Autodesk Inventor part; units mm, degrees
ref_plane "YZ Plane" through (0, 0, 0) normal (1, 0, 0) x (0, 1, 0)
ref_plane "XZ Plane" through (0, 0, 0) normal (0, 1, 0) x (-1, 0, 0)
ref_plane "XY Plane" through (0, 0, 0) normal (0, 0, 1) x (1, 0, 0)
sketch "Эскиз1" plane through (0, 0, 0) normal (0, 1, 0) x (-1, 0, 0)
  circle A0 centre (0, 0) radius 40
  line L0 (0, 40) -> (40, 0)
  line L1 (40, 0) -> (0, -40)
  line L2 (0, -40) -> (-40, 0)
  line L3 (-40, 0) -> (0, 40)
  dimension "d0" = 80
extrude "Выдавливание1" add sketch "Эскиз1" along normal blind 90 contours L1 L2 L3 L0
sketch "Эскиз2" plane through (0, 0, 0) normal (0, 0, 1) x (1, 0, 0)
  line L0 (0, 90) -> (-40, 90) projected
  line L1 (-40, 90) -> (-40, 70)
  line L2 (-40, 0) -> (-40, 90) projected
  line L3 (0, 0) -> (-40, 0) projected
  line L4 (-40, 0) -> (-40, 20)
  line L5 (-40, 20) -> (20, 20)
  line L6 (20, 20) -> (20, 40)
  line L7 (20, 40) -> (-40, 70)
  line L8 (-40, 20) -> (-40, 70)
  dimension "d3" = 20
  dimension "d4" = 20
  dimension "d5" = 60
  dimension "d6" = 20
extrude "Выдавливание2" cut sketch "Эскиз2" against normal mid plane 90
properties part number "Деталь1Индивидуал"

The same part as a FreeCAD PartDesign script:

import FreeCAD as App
import Part
import Sketcher
from FreeCAD import Vector

doc = App.newDocument("Part")
body = doc.addObject("PartDesign::Body", "Body")

# Sketch on XZ plane
sketch1 = doc.addObject("Sketcher::SketchObject", "Sketch")
body.addObject(sketch1)
sketch1.AttachmentSupport = (doc.XZ_Plane, [""])
sketch1.MapMode = "FlatFace"
sketch1.addGeometry([
    Part.LineSegment(Vector(0, -40, 0), Vector(-40, 0, 0)),
    Part.LineSegment(Vector(-40, 0, 0), Vector(0, 40, 0)),
    Part.LineSegment(Vector(0, 40, 0), Vector(40, 0, 0)),
    Part.LineSegment(Vector(40, 0, 0), Vector(0, -40, 0)),
], False)
sketch1.addConstraint([
    Sketcher.Constraint("Coincident", 0, 2, 1, 1),
    Sketcher.Constraint("Coincident", 1, 2, 2, 1),
    Sketcher.Constraint("Coincident", 2, 2, 3, 1),
    Sketcher.Constraint("Coincident", 3, 2, 0, 1),
    Sketcher.Constraint("Symmetric", 0, 2, 2, 2, -1, 1),
    Sketcher.Constraint("Symmetric", 1, 2, 3, 2, -1, 1),
    Sketcher.Constraint("PointOnObject", 0, 2, -1),
    Sketcher.Constraint("PointOnObject", 1, 2, -2),
    Sketcher.Constraint("Perpendicular", 0, 1),
    Sketcher.Constraint("DistanceX", 0, 2, 2, 2, 80.0),
])
pad1 = doc.addObject("PartDesign::Pad", "Pad")
body.addObject(pad1)
pad1.Profile = sketch1
pad1.Length = 90
pad1.Reversed = True

# Sketch on XY plane
sketch2 = doc.addObject("Sketcher::SketchObject", "Sketch001")
body.addObject(sketch2)
sketch2.AttachmentSupport = (doc.XY_Plane, [""])
sketch2.MapMode = "FlatFace"
sketch2.addGeometry([
    Part.LineSegment(Vector(-40, 70, 0), Vector(-40, 20, 0)),
    Part.LineSegment(Vector(-40, 20, 0), Vector(20, 20, 0)),
    Part.LineSegment(Vector(20, 20, 0), Vector(20, 40, 0)),
    Part.LineSegment(Vector(20, 40, 0), Vector(-40, 70, 0)),
], False)
sketch2.addConstraint([
    Sketcher.Constraint("Coincident", 0, 2, 1, 1),
    Sketcher.Constraint("Coincident", 1, 2, 2, 1),
    Sketcher.Constraint("Coincident", 2, 2, 3, 1),
    Sketcher.Constraint("Coincident", 3, 2, 0, 1),
    Sketcher.Constraint("Vertical", 0),
    Sketcher.Constraint("Horizontal", 1),
    Sketcher.Constraint("Vertical", 2),
    Sketcher.Constraint("DistanceX", 1, 1, 1, 2, 60.0),
    Sketcher.Constraint("DistanceY", 2, 1, 2, 2, 20.0),
    Sketcher.Constraint("DistanceY", -1, 1, 0, 2, 20.0),
    Sketcher.Constraint("DistanceX", -1, 1, 1, 2, 20.0),
    Sketcher.Constraint("DistanceY", 0, 2, 0, 1, 50.0),
])
pocket1 = doc.addObject("PartDesign::Pocket", "Pocket")
body.addObject(pocket1)
pocket1.Profile = sketch2
pocket1.Length = 90
pocket1.Midplane = True

doc.recompute()
